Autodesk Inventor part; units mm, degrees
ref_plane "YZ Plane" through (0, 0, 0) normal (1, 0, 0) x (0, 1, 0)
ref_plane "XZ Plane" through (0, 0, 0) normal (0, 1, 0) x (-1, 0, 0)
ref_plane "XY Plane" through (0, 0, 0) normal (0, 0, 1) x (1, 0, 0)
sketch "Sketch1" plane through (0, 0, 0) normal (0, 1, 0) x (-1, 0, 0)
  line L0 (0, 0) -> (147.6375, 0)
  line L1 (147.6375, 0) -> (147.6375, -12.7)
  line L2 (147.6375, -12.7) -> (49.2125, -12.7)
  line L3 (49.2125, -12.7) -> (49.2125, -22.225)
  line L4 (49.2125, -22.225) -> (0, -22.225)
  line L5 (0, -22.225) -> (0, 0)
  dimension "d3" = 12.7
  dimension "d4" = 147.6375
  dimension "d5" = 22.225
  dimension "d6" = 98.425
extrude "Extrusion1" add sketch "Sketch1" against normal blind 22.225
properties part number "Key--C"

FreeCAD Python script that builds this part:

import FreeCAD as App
import Part
import Sketcher
from FreeCAD import Vector
Q = App.Units.Quantity


def add_polygon(sketch, points):
    """Adds a closed chain of lines whose ends are joined by coincident constraints."""
    first, n = sketch.GeometryCount, len(points)
    for a, b in zip(points, points[1:] + points[:1]):
        sketch.addGeometry(Part.LineSegment(App.Vector(*a, 0), App.Vector(*b, 0)), False)
    for i in range(n):
        sketch.addConstraint(Sketcher.Constraint("Coincident", first + i, 2, first + (i + 1) % n, 1))

doc = App.newDocument("Part")
params = doc.addObject("Spreadsheet::Sheet", "Params")
for row, (alias, value) in enumerate([
    ("sketch1_height", "0.5 in"),
    ("sketch1_width", "5.8125 in"),
    ("sketch1_width2", "3.875 in"),
    ("sketch1_height2", "0.875 in"),
    ("pad1_length", "0.875 in"),
], start=1):
    params.set(f"A{row}", alias)
    params.set(f"B{row}", "=" + value)
    params.setAlias(f"B{row}", alias)

body = doc.addObject("PartDesign::Body", "Body")

# Sketch on XZ plane
sketch1 = doc.addObject("Sketcher::SketchObject", "Sketch")
body.addObject(sketch1)
sketch1.AttachmentSupport = (doc.XZ_Plane, [""])
sketch1.MapMode = "FlatFace"
add_polygon(sketch1, [(-148, 0), (0, 0), (0, -22), (-49, -22), (-49, -13), (-148, -13)])  # lines 0-5
sketch1.addConstraint(Sketcher.Constraint("Horizontal", 0))
sketch1.addConstraint(Sketcher.Constraint("Vertical", 1))
sketch1.addConstraint(Sketcher.Constraint("Horizontal", 2))
sketch1.addConstraint(Sketcher.Constraint("Vertical", 3))
sketch1.addConstraint(Sketcher.Constraint("Horizontal", 4))
sketch1.addConstraint(Sketcher.Constraint("Vertical", 5))
sketch1.addConstraint(Sketcher.Constraint("Coincident", 0, 2, -1, 1))
sketch1.addConstraint(Sketcher.Constraint("DistanceY", 5, 1, 5, 2, Q("0.5 in")))
sketch1.addConstraint(Sketcher.Constraint("DistanceX", 0, 1, 0, 2, Q("5.8125 in")))
sketch1.addConstraint(Sketcher.Constraint("DistanceX", 4, 2, 4, 1, Q("3.875 in")))
sketch1.addConstraint(Sketcher.Constraint("DistanceY", 1, 2, 1, 1, Q("0.875 in")))
sketch1.setExpression("Constraints[13]", "Params.sketch1_height")
sketch1.setExpression("Constraints[14]", "Params.sketch1_width")
sketch1.setExpression("Constraints[15]", "Params.sketch1_width2")
sketch1.setExpression("Constraints[16]", "Params.sketch1_height2")
pad1 = doc.addObject("PartDesign::Pad", "Pad")
body.addObject(pad1)
pad1.Profile = sketch1
pad1.setExpression("Length", "Params.pad1_length")

doc.recompute()
